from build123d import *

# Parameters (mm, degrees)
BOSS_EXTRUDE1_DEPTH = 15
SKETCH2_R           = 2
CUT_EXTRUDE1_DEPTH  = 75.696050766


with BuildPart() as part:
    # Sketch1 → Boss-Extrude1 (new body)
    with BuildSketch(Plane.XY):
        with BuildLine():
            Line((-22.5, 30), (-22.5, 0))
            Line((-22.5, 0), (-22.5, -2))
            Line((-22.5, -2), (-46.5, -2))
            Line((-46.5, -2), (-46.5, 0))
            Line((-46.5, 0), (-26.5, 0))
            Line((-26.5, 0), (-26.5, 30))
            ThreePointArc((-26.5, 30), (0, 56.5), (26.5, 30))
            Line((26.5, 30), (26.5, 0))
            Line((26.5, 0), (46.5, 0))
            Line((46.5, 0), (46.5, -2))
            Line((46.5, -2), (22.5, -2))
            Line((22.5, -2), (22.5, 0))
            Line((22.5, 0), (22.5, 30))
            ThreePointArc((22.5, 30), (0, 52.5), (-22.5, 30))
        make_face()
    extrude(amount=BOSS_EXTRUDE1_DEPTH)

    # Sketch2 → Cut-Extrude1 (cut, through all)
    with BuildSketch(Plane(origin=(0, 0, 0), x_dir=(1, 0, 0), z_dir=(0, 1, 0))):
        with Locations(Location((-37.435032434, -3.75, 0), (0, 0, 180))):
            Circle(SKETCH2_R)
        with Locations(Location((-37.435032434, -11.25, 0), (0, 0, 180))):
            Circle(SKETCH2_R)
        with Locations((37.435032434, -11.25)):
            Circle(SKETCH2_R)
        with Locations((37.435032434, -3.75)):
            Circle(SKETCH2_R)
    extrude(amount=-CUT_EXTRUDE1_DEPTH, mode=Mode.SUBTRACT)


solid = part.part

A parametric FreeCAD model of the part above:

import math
import FreeCAD as App
import Part
import Sketcher

V = App.Vector
Q = App.Units.Quantity

doc = App.newDocument("Part")
body = doc.addObject("PartDesign::Body", "Body")

# Sketch on XY plane
sketch1 = doc.addObject("Sketcher::SketchObject", "Sketch")
body.addObject(sketch1)
sketch1.AttachmentSupport = (doc.XY_Plane, [""])
sketch1.MapMode = "FlatFace"
sketch1.addGeometry(Part.LineSegment(V(-22.5, -2, 0), V(-22.5, 30, 0)), False)
sketch1.addGeometry(Part.ArcOfCircle(Part.Circle(V(0, 30, 0), V(0, 0, 1), 22.5), math.radians(0), math.radians(180)), False)
sketch1.addGeometry(Part.LineSegment(V(22.5, 30, 0), V(22.5, -2, 0)), False)
sketch1.addGeometry(Part.LineSegment(V(22.5, -2, 0), V(46.5, -2, 0)), False)
sketch1.addGeometry(Part.LineSegment(V(46.5, -2, 0), V(46.5, 0, 0)), False)
sketch1.addGeometry(Part.LineSegment(V(46.5, 0, 0), V(26.5, 0, 0)), False)
sketch1.addGeometry(Part.LineSegment(V(26.5, 0, 0), V(26.5, 30, 0)), False)
sketch1.addGeometry(Part.ArcOfCircle(Part.Circle(V(0, 30, 0), V(0, 0, 1), 26.5), math.radians(0), math.radians(180)), False)
sketch1.addGeometry(Part.LineSegment(V(-26.5, 30, 0), V(-26.5, 0, 0)), False)
sketch1.addGeometry(Part.LineSegment(V(-26.5, 0, 0), V(-46.5, 0, 0)), False)
sketch1.addGeometry(Part.LineSegment(V(-46.5, 0, 0), V(-46.5, -2, 0)), False)
sketch1.addGeometry(Part.LineSegment(V(-46.5, -2, 0), V(-22.5, -2, 0)), False)
sketch1.addConstraint(Sketcher.Constraint("Tangent", 0, 2, 1, 2))
sketch1.addConstraint(Sketcher.Constraint("Tangent", 1, 1, 2, 1))
sketch1.addConstraint(Sketcher.Constraint("Coincident", 2, 2, 3, 1))
sketch1.addConstraint(Sketcher.Constraint("Coincident", 3, 2, 4, 1))
sketch1.addConstraint(Sketcher.Constraint("Coincident", 4, 2, 5, 1))
sketch1.addConstraint(Sketcher.Constraint("Coincident", 5, 2, 6, 1))
sketch1.addConstraint(Sketcher.Constraint("Tangent", 6, 2, 7, 1))
sketch1.addConstraint(Sketcher.Constraint("Tangent", 7, 2, 8, 1))
sketch1.addConstraint(Sketcher.Constraint("Coincident", 8, 2, 9, 1))
sketch1.addConstraint(Sketcher.Constraint("Coincident", 9, 2, 10, 1))
sketch1.addConstraint(Sketcher.Constraint("Coincident", 10, 2, 11, 1))
sketch1.addConstraint(Sketcher.Constraint("Coincident", 11, 2, 0, 1))
sketch1.addConstraint(Sketcher.Constraint("Vertical", 0))
sketch1.addConstraint(Sketcher.Constraint("Vertical", 2))
sketch1.addConstraint(Sketcher.Constraint("Horizontal", 3))
sketch1.addConstraint(Sketcher.Constraint("Vertical", 4))
sketch1.addConstraint(Sketcher.Constraint("Horizontal", 5))
sketch1.addConstraint(Sketcher.Constraint("Vertical", 6))
sketch1.addConstraint(Sketcher.Constraint("Vertical", 8))
sketch1.addConstraint(Sketcher.Constraint("Horizontal", 9))
sketch1.addConstraint(Sketcher.Constraint("Vertical", 10))
sketch1.addConstraint(Sketcher.Constraint("Horizontal", 11))
sketch1.addConstraint(Sketcher.Constraint("Coincident", 7, 3, 1, 3))
sketch1.addConstraint(Sketcher.Constraint("Symmetric", 5, 2, 8, 2, -1, 1))
sketch1.addConstraint(Sketcher.Constraint("Symmetric", 4, 2, 9, 2, -2))
sketch1.addConstraint(Sketcher.Constraint("Horizontal", 3, 2, 10, 2))
sketch1.addConstraint(Sketcher.Constraint("Radius", 1, Q("22.5 mm")))
sketch1.addConstraint(Sketcher.Constraint("Radius", 7, Q("26.5 mm")))
sketch1.addConstraint(Sketcher.Constraint("DistanceX", 3, 1, 3, 2, Q("24 mm")))
sketch1.addConstraint(Sketcher.Constraint("DistanceY", 0, 1, 0, 2, Q("32 mm")))
sketch1.addConstraint(Sketcher.Constraint("DistanceY", 4, 1, 4, 2, Q("2 mm")))
pad1 = doc.addObject("PartDesign::Pad", "Pad")
body.addObject(pad1)
pad1.Profile = sketch1
pad1.Length = 15

# Sketch on XZ plane
sketch2 = doc.addObject("Sketcher::SketchObject", "Sketch001")
body.addObject(sketch2)
sketch2.AttachmentSupport = (doc.XZ_Plane, [""])
sketch2.MapMode = "FlatFace"
sketch2.addGeometry(Part.Circle(V(-37.4, 3.8, 0), V(0, 0, 1), 2), False)
sketch2.addGeometry(Part.Circle(V(-37.4, 11.2, 0), V(0, 0, 1), 2), False)
sketch2.addGeometry(Part.Circle(V(37.4, 11.2, 0), V(0, 0, 1), 2), False)
sketch2.addGeometry(Part.Circle(V(37.4, 3.8, 0), V(0, 0, 1), 2), False)
sketch2.addConstraint(Sketcher.Constraint("Equal", 0, 1))
sketch2.addConstraint(Sketcher.Constraint("Equal", 1, 2))
sketch2.addConstraint(Sketcher.Constraint("Equal", 2, 3))
sketch2.addConstraint(Sketcher.Constraint("Symmetric", 1, 3, 2, 3, -2))
sketch2.addConstraint(Sketcher.Constraint("Symmetric", 0, 3, 3, 3, -2))
sketch2.addConstraint(Sketcher.Constraint("Vertical", 0, 3, 1, 3))
sketch2.addConstraint(Sketcher.Constraint("Diameter", 0, Q("4 mm")))
sketch2.addConstraint(Sketcher.Constraint("DistanceY", 0, 3, 1, 3, Q("7.5 mm")))
sketch2.addConstraint(Sketcher.Constraint("DistanceY", -1, 1, 0, 3, Q("3.75 mm")))
sketch2.addConstraint(Sketcher.Constraint("DistanceX", 0, 3, -1, 1, Q("37.435032 mm")))
pocket1 = doc.addObject("PartDesign::Pocket", "Pocket")
body.addObject(pocket1)
pocket1.Profile = sketch2
pocket1.Type = "ThroughAll"
pocket1.Reversed = True

doc.recompute()
